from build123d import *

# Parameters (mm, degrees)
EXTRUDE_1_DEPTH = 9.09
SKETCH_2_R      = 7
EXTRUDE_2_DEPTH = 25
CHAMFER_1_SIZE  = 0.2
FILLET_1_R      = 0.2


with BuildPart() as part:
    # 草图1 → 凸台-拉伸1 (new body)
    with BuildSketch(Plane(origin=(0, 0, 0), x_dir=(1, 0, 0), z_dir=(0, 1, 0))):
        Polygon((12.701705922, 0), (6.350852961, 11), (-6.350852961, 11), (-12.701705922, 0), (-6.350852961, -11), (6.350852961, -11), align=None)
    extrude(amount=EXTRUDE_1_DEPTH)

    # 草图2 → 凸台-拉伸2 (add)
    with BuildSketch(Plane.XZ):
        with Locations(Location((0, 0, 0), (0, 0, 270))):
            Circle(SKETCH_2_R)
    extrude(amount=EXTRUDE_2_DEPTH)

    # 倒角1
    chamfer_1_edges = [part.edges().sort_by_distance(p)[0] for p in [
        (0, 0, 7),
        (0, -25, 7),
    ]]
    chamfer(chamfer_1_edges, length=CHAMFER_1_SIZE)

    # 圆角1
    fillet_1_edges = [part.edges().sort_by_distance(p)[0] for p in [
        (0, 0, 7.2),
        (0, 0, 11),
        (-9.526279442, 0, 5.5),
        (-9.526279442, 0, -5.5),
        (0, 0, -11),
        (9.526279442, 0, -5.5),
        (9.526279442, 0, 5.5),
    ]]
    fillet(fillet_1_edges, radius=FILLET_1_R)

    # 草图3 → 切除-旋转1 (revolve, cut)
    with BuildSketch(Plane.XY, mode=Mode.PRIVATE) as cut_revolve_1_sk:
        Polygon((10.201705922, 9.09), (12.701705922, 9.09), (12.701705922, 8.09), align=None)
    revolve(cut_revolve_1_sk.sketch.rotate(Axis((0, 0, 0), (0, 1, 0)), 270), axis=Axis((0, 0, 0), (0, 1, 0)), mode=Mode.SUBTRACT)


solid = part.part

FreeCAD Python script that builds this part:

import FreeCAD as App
import Part
import Sketcher

V = App.Vector
Q = App.Units.Quantity


def edges_at(feature, points):
    """Names of the edges that pass closest to the given points."""
    edges = feature.Shape.Edges
    near = lambda p: min(range(len(edges)), key=lambda i: edges[i].distToShape(Part.Vertex(*p))[0])
    return sorted({f"Edge{near(p) + 1}" for p in points})

doc = App.newDocument("Part")
body = doc.addObject("PartDesign::Body", "Body")

# Sketch on XZ plane
sketch1 = body.newObject("Sketcher::SketchObject", "Sketch")
sketch1.AttachmentSupport = (doc.getObject("XZ_Plane"), [""])
sketch1.MapMode = "FlatFace"
sketch1.addGeometry(Part.LineSegment(V(13, 0, 0), V(6, -11, 0)), False)
sketch1.addGeometry(Part.LineSegment(V(6, -11, 0), V(-6, -11, 0)), False)
sketch1.addGeometry(Part.LineSegment(V(-6, -11, 0), V(-13, 0, 0)), False)
sketch1.addGeometry(Part.LineSegment(V(-13, 0, 0), V(-6, 11, 0)), False)
sketch1.addGeometry(Part.LineSegment(V(-6, 11, 0), V(6, 11, 0)), False)
sketch1.addGeometry(Part.LineSegment(V(6, 11, 0), V(13, 0, 0)), False)
sketch1.addConstraint(Sketcher.Constraint("Coincident", 0, 2, 1, 1))
sketch1.addConstraint(Sketcher.Constraint("Coincident", 1, 2, 2, 1))
sketch1.addConstraint(Sketcher.Constraint("Coincident", 2, 2, 3, 1))
sketch1.addConstraint(Sketcher.Constraint("Coincident", 3, 2, 4, 1))
sketch1.addConstraint(Sketcher.Constraint("Coincident", 4, 2, 5, 1))
sketch1.addConstraint(Sketcher.Constraint("Coincident", 5, 2, 0, 1))
sketch1.addConstraint(Sketcher.Constraint("Horizontal", 1))
sketch1.addConstraint(Sketcher.Constraint("Horizontal", 4))
sketch1.addConstraint(Sketcher.Constraint("Symmetric", 0, 2, 3, 2, -1, 1))
sketch1.addConstraint(Sketcher.Constraint("Symmetric", 2, 2, 5, 2, -1, 1))
sketch1.addConstraint(Sketcher.Constraint("PointOnObject", 2, 2, -1))
sketch1.addConstraint(Sketcher.Constraint("Parallel", 2, 5))
sketch1.addConstraint(Sketcher.Constraint("Vertical", 1, 2, 3, 2))
sketch1.addConstraint(Sketcher.Constraint("Angle", 0, Q("-120 deg")))
sketch1.addConstraint(Sketcher.Constraint("DistanceY", 0, 2, -1, 1, 11.0))
sketch1.addConstraint(Sketcher.Constraint("DistanceX", 1, 2, 1, 1, 12.701706))
pad1 = body.newObject("PartDesign::Pad", "Pad")
pad1.Profile = sketch1
pad1.Length = 9.09
pad1.Reversed = True

# Sketch on XZ plane
sketch2 = body.newObject("Sketcher::SketchObject", "Sketch001")
sketch2.AttachmentSupport = (doc.getObject("XZ_Plane"), [""])
sketch2.MapMode = "FlatFace"
sketch2.addGeometry(Part.Circle(V(0, 0, 0), V(0, 0, 1), 7), False)
sketch2.addConstraint(Sketcher.Constraint("Coincident", 0, 3, -1, 1))
sketch2.addConstraint(Sketcher.Constraint("Diameter", 0, 14.0))
pad2 = body.newObject("PartDesign::Pad", "Pad001")
pad2.Profile = sketch2
pad2.Length = 25
doc.recompute()

chamfer = body.newObject("PartDesign::Chamfer", "Chamfer")
chamfer.Base = (pad2, edges_at(pad2, [(0, 0, 7), (0, -25, 7)]))
chamfer.Size = 0.2
doc.recompute()

fillet = body.newObject("PartDesign::Fillet", "Fillet")
fillet.Base = (chamfer, edges_at(chamfer, [
    (0, 0, 7.2),
    (0, 0, 11),
    (-9.526, 0, 5.5),
    (-9.526, 0, -5.5),
    (0, 0, -11),
    (9.526, 0, -5.5),
    (9.526, 0, 5.5),
]))
fillet.Radius = 0.2

# Sketch on XY plane
sketch3 = body.newObject("Sketcher::SketchObject", "Sketch002")
sketch3.AttachmentSupport = (doc.getObject("XY_Plane"), [""])
sketch3.MapMode = "FlatFace"
sketch3.addGeometry(Part.LineSegment(V(12.7, 9.1, 0), V(10.2, 9.1, 0)), False)
sketch3.addGeometry(Part.LineSegment(V(10.2, 9.1, 0), V(12.7, 8.1, 0)), False)
sketch3.addGeometry(Part.LineSegment(V(12.7, 8.1, 0), V(12.7, 9.1, 0)), False)
sketch3.addConstraint(Sketcher.Constraint("Coincident", 0, 2, 1, 1))
sketch3.addConstraint(Sketcher.Constraint("Coincident", 1, 2, 2, 1))
sketch3.addConstraint(Sketcher.Constraint("Coincident", 2, 2, 0, 1))
sketch3.addConstraint(Sketcher.Constraint("Horizontal", 0))
sketch3.addConstraint(Sketcher.Constraint("Vertical", 2))
sketch3.addConstraint(Sketcher.Constraint("DistanceY", 2, 1, 2, 2, 1.0))
sketch3.addConstraint(Sketcher.Constraint("DistanceX", 0, 2, 0, 1, 2.5))
sketch3.addConstraint(Sketcher.Constraint("DistanceY", -1, 1, 0, 2, 9.09))
sketch3.addConstraint(Sketcher.Constraint("DistanceX", -1, 1, 0, 2, 10.201706))
groove = body.newObject("PartDesign::Groove", "Groove")
groove.Profile = sketch3
groove.ReferenceAxis = (sketch3, ["V_Axis"])
groove.Angle = 360

doc.recompute()
